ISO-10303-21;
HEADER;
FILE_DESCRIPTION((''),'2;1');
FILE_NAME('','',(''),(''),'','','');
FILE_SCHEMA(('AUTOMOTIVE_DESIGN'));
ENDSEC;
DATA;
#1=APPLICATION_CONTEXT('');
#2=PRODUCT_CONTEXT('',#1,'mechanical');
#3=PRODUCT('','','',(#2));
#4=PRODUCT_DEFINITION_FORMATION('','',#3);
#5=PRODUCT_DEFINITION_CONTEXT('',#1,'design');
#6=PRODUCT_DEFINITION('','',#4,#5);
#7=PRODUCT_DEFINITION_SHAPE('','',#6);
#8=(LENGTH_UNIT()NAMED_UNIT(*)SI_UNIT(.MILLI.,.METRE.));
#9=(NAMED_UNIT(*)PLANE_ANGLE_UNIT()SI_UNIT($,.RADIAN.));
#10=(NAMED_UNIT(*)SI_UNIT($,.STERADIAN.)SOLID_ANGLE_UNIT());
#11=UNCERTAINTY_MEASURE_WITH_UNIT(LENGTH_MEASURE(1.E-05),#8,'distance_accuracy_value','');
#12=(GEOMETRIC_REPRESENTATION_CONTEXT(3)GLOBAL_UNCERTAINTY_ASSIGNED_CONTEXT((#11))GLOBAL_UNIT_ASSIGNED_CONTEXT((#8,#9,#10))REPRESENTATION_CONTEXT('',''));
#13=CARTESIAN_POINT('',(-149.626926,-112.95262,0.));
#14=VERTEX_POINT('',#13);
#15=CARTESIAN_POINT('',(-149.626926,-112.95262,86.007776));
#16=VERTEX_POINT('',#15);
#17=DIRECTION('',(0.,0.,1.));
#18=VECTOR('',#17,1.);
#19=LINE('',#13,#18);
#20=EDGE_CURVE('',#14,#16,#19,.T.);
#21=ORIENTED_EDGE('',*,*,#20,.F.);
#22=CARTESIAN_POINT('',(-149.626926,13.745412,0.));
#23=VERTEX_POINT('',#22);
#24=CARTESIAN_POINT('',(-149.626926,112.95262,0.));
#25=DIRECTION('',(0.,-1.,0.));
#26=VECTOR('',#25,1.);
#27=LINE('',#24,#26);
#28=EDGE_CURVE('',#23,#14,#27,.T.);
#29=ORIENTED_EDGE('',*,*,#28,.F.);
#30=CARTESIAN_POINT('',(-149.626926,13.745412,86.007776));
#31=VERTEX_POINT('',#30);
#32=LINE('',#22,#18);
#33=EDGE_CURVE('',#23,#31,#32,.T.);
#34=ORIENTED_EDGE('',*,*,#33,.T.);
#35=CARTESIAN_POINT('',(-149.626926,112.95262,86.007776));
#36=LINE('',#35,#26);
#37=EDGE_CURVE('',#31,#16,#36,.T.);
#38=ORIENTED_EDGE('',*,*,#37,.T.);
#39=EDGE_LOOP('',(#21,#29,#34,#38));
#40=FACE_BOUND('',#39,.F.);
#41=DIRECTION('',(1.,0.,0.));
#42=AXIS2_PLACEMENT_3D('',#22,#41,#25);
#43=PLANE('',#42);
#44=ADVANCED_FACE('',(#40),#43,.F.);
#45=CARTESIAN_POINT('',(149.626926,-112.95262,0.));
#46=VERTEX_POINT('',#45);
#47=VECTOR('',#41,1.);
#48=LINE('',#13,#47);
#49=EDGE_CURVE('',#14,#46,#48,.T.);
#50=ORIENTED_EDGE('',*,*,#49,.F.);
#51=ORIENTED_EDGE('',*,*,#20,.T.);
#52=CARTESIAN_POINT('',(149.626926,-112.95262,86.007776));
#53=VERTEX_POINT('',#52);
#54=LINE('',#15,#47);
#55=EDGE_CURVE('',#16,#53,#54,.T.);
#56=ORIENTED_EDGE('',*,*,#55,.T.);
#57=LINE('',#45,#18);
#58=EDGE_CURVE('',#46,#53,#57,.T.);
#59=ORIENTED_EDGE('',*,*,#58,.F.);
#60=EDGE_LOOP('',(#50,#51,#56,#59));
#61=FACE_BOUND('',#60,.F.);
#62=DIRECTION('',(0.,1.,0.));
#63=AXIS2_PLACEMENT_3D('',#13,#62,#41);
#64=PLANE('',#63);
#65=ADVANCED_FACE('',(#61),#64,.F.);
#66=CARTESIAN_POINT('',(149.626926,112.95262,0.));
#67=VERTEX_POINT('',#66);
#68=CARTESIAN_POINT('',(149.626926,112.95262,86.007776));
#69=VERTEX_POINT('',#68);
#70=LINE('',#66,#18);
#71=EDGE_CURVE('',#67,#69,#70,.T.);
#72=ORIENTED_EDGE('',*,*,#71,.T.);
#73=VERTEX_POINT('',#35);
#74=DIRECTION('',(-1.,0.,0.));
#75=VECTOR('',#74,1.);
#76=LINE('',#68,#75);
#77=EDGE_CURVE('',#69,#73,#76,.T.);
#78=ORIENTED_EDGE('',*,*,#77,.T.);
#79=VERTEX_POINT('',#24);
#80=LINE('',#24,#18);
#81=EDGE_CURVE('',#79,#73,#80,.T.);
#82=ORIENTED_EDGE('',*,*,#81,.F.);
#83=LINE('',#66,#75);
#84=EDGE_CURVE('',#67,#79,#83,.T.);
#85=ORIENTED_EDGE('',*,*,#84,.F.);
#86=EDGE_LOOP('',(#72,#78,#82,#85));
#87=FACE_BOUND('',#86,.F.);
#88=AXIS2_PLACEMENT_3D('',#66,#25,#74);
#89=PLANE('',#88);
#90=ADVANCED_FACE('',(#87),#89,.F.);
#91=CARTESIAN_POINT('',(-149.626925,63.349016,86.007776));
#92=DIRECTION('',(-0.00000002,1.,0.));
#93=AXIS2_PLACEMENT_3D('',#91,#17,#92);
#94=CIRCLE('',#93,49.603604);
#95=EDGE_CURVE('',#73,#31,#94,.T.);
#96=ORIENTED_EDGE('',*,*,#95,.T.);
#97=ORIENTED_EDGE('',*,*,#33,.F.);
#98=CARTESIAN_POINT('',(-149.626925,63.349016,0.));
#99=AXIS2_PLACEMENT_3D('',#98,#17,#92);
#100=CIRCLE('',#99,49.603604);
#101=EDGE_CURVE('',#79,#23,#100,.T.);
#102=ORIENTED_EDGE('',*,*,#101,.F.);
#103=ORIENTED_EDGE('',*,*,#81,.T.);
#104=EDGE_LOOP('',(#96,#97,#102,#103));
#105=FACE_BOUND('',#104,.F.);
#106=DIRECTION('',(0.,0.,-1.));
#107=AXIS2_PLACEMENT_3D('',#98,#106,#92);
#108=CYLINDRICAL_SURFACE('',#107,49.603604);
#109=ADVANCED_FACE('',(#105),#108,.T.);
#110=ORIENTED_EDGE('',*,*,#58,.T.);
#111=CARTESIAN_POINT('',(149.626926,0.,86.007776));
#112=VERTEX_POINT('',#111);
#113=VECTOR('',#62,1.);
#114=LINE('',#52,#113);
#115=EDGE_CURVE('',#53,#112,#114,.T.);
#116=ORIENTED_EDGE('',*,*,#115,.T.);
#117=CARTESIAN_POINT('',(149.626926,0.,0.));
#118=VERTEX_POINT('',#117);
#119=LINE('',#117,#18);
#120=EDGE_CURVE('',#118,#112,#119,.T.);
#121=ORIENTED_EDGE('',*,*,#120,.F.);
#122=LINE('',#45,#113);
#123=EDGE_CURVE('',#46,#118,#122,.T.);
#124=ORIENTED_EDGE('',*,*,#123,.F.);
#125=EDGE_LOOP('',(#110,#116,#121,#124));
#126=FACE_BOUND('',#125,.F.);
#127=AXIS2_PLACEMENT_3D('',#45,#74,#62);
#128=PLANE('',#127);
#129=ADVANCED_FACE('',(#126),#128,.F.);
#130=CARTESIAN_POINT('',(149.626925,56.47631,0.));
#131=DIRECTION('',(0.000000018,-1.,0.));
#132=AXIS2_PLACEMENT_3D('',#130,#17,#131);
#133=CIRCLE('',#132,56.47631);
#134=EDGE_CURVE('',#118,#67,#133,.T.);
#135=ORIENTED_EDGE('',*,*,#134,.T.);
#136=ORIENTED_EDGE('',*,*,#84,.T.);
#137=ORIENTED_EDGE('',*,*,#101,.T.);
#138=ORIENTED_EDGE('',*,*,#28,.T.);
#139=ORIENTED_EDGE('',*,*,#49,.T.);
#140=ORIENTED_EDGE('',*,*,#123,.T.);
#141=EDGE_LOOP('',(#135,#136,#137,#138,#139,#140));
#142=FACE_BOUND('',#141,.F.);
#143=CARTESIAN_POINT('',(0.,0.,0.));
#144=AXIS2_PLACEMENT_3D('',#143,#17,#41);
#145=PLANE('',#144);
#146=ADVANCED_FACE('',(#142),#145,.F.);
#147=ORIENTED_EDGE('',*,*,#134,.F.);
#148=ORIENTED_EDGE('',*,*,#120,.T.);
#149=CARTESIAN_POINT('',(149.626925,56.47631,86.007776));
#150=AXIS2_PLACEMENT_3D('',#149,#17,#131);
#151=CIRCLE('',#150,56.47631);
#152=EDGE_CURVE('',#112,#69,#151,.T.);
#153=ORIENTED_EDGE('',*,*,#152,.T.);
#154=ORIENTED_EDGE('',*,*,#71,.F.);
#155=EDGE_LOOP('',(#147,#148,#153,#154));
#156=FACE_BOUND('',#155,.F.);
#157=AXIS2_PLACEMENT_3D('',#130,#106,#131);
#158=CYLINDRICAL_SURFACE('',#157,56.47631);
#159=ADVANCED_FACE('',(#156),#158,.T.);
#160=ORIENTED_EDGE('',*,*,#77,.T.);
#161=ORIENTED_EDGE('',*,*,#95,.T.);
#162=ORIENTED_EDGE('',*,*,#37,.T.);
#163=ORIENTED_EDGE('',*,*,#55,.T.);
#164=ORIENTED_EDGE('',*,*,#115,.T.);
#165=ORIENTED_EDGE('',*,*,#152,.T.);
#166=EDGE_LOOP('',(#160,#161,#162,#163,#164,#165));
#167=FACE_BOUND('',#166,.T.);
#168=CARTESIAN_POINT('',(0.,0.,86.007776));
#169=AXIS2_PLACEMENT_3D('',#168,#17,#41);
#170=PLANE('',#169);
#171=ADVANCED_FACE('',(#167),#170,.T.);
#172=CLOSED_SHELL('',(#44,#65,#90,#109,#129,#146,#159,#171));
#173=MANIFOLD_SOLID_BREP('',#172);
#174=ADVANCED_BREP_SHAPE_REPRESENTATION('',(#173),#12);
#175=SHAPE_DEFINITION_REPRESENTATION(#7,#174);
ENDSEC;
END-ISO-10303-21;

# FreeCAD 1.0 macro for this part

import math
import FreeCAD as App
import Part
import Sketcher
from FreeCAD import Vector

doc = App.newDocument("Part")
params = doc.addObject("Spreadsheet::Sheet", "Params")
for row, (alias, value) in enumerate([
    ("pad1_length", "86.007776 mm"),
], start=1):
    params.set(f"A{row}", alias)
    params.set(f"B{row}", "=" + value)
    params.setAlias(f"B{row}", alias)

body = doc.addObject("PartDesign::Body", "Body")

# Sketch on XY plane
sketch1 = body.newObject("Sketcher::SketchObject", "Sketch")
sketch1.AttachmentSupport = (doc.getObject("XY_Plane"), [""])
sketch1.MapMode = "FlatFace"
sketch1.addGeometry([
    Part.LineSegment(Vector(150, 113, 0), Vector(-150, 113, 0)),  # 0
    Part.ArcOfCircle(Part.Circle(Vector(-150, 63, 0), Vector(0, 0, 1), 50), math.radians(90), math.radians(270)),  # 1
    Part.LineSegment(Vector(-150, 14, 0), Vector(-150, -113, 0)),  # 2
    Part.LineSegment(Vector(-150, -113, 0), Vector(150, -113, 0)),  # 3
    Part.LineSegment(Vector(150, -113, 0), Vector(150, 0, 0)),  # 4
    Part.ArcOfCircle(Part.Circle(Vector(150, 56, 0), Vector(0, 0, 1), 56), math.radians(-90), math.radians(90)),  # 5
], False)
sketch1.addConstraint([
    Sketcher.Constraint("Tangent", 0, 2, 1, 1),
    Sketcher.Constraint("Coincident", 1, 2, 2, 1),
    Sketcher.Constraint("Coincident", 2, 2, 3, 1),
    Sketcher.Constraint("Coincident", 3, 2, 4, 1),
    Sketcher.Constraint("Coincident", 4, 2, 5, 1),
    Sketcher.Constraint("Tangent", 5, 2, 0, 1),
    Sketcher.Constraint("Horizontal", 0),
    Sketcher.Constraint("Vertical", 2),
    Sketcher.Constraint("Horizontal", 3),
    Sketcher.Constraint("Vertical", 4),
    Sketcher.Constraint("Symmetric", 0, 2, 3, 2, -1, 1),
    Sketcher.Constraint("PointOnObject", 4, 2, -1),
    Sketcher.Constraint("Vertical", 0, 2, 1, 2),
    Sketcher.Constraint("Vertical", 5, 3, 3, 2),
    Sketcher.Constraint("Radius", 5, 56.47631),
    Sketcher.Constraint("Radius", 1, 49.603604),
    Sketcher.Constraint("DistanceX", 0, 2, 0, 1, 299.253852),
])
pad1 = body.newObject("PartDesign::Pad", "Pad")
pad1.Profile = sketch1
pad1.setExpression("Length", "Params.pad1_length")

doc.recompute()
